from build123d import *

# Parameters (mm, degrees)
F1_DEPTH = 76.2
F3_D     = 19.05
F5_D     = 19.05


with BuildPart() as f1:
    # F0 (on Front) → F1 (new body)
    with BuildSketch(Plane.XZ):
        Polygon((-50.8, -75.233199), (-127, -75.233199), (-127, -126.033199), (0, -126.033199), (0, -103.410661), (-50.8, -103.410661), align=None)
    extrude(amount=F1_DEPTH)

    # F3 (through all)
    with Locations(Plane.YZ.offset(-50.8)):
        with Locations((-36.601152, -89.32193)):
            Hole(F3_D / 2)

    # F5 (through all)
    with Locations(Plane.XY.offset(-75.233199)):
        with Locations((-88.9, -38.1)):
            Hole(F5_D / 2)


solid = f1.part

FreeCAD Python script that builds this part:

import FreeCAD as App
import Part
import Sketcher
Q = App.Units.Quantity


def add_polygon(sketch, points):
    """Adds a closed chain of lines whose ends are joined by coincident constraints."""
    first, n = sketch.GeometryCount, len(points)
    for a, b in zip(points, points[1:] + points[:1]):
        sketch.addGeometry(Part.LineSegment(App.Vector(*a, 0), App.Vector(*b, 0)), False)
    for i in range(n):
        sketch.addConstraint(Sketcher.Constraint("Coincident", first + i, 2, first + (i + 1) % n, 1))

doc = App.newDocument("Part")
body = doc.addObject("PartDesign::Body", "Body")

sketch1 = doc.addObject("Sketcher::SketchObject", "Sketch")
body.addObject(sketch1)
sketch1.AttachmentSupport = (doc.XZ_Plane, [""])
sketch1.MapMode = "FlatFace"
add_polygon(sketch1, [(-50.8, -75.233199), (-127, -75.233199), (-127, -126.033199), (0, -126.033199), (0, -103.410661), (-50.8, -103.410661)])
sketch1.addConstraint(Sketcher.Constraint("Horizontal", 0))
sketch1.addConstraint(Sketcher.Constraint("Vertical", 1))
sketch1.addConstraint(Sketcher.Constraint("Horizontal", 2))
sketch1.addConstraint(Sketcher.Constraint("Vertical", 3))
sketch1.addConstraint(Sketcher.Constraint("Horizontal", 4))
sketch1.addConstraint(Sketcher.Constraint("Vertical", 5))
sketch1.addConstraint(Sketcher.Constraint("PointOnObject", 2, 2, -2))
sketch1.addConstraint(Sketcher.Constraint("Equal", 4, 1))
sketch1.addConstraint(Sketcher.Constraint("DistanceX", 0, 2, 0, 1, Q("3 in")))
sketch1.addConstraint(Sketcher.Constraint("DistanceX", 2, 1, 2, 2, Q("5 in")))
sketch1.addConstraint(Sketcher.Constraint("DistanceY", 0, 2, -1, 1, Q("75.233199 mm")))
sketch1.addConstraint(Sketcher.Constraint("DistanceY", 3, 1, 3, 2, Q("22.622538 mm")))
pad1 = doc.addObject("PartDesign::Pad", "Pad")
body.addObject(pad1)
pad1.Profile = sketch1
pad1.Length = Q("3 in")

sketch2 = doc.addObject("Sketcher::SketchObject", "Sketch001")
body.addObject(sketch2)
sketch2.AttachmentSupport = (doc.YZ_Plane, [""])
sketch2.MapMode = "FlatFace"
sketch2.AttachmentOffset = App.Placement(App.Vector(0, 0, -2 * 25.4), App.Rotation())
sketch2.addGeometry(Part.Circle(App.Vector(-36.601152, -89.32193, 0), App.Vector(0, 0, 1), 9.525), False)
sketch2.addConstraint(Sketcher.Constraint("Diameter", 0, Q("0.75 in")))
sketch2.addConstraint(Sketcher.Constraint("DistanceY", 0, 3, -1, 1, Q("89.32193 mm")))
sketch2.addConstraint(Sketcher.Constraint("DistanceX", 0, 3, -1, 1, Q("36.601152 mm")))
doc.recompute()
hole = doc.addObject("PartDesign::Hole", "Hole")
body.addObject(hole)
hole.Profile = sketch2
hole.ThreadType = "None"
hole.Diameter = Q("0.75 in")
hole.DepthType = "ThroughAll"

sketch3 = doc.addObject("Sketcher::SketchObject", "Sketch002")
body.addObject(sketch3)
sketch3.AttachmentSupport = (doc.XY_Plane, [""])
sketch3.MapMode = "FlatFace"
sketch3.AttachmentOffset = App.Placement(App.Vector(0, 0, -75.233199), App.Rotation())
sketch3.addGeometry(Part.Circle(App.Vector(-88.9, -38.1, 0), App.Vector(0, 0, 1), 9.525), False)
sketch3.addConstraint(Sketcher.Constraint("Diameter", 0, Q("0.75 in")))
sketch3.addConstraint(Sketcher.Constraint("DistanceX", 0, 3, -1, 1, Q("3.5 in")))
sketch3.addConstraint(Sketcher.Constraint("DistanceY", 0, 3, -1, 1, Q("1.5 in")))
doc.recompute()
hole2 = doc.addObject("PartDesign::Hole", "Hole001")
body.addObject(hole2)
hole2.Profile = sketch3
hole2.ThreadType = "None"
hole2.Diameter = Q("0.75 in")
hole2.DepthType = "ThroughAll"

doc.recompute()
